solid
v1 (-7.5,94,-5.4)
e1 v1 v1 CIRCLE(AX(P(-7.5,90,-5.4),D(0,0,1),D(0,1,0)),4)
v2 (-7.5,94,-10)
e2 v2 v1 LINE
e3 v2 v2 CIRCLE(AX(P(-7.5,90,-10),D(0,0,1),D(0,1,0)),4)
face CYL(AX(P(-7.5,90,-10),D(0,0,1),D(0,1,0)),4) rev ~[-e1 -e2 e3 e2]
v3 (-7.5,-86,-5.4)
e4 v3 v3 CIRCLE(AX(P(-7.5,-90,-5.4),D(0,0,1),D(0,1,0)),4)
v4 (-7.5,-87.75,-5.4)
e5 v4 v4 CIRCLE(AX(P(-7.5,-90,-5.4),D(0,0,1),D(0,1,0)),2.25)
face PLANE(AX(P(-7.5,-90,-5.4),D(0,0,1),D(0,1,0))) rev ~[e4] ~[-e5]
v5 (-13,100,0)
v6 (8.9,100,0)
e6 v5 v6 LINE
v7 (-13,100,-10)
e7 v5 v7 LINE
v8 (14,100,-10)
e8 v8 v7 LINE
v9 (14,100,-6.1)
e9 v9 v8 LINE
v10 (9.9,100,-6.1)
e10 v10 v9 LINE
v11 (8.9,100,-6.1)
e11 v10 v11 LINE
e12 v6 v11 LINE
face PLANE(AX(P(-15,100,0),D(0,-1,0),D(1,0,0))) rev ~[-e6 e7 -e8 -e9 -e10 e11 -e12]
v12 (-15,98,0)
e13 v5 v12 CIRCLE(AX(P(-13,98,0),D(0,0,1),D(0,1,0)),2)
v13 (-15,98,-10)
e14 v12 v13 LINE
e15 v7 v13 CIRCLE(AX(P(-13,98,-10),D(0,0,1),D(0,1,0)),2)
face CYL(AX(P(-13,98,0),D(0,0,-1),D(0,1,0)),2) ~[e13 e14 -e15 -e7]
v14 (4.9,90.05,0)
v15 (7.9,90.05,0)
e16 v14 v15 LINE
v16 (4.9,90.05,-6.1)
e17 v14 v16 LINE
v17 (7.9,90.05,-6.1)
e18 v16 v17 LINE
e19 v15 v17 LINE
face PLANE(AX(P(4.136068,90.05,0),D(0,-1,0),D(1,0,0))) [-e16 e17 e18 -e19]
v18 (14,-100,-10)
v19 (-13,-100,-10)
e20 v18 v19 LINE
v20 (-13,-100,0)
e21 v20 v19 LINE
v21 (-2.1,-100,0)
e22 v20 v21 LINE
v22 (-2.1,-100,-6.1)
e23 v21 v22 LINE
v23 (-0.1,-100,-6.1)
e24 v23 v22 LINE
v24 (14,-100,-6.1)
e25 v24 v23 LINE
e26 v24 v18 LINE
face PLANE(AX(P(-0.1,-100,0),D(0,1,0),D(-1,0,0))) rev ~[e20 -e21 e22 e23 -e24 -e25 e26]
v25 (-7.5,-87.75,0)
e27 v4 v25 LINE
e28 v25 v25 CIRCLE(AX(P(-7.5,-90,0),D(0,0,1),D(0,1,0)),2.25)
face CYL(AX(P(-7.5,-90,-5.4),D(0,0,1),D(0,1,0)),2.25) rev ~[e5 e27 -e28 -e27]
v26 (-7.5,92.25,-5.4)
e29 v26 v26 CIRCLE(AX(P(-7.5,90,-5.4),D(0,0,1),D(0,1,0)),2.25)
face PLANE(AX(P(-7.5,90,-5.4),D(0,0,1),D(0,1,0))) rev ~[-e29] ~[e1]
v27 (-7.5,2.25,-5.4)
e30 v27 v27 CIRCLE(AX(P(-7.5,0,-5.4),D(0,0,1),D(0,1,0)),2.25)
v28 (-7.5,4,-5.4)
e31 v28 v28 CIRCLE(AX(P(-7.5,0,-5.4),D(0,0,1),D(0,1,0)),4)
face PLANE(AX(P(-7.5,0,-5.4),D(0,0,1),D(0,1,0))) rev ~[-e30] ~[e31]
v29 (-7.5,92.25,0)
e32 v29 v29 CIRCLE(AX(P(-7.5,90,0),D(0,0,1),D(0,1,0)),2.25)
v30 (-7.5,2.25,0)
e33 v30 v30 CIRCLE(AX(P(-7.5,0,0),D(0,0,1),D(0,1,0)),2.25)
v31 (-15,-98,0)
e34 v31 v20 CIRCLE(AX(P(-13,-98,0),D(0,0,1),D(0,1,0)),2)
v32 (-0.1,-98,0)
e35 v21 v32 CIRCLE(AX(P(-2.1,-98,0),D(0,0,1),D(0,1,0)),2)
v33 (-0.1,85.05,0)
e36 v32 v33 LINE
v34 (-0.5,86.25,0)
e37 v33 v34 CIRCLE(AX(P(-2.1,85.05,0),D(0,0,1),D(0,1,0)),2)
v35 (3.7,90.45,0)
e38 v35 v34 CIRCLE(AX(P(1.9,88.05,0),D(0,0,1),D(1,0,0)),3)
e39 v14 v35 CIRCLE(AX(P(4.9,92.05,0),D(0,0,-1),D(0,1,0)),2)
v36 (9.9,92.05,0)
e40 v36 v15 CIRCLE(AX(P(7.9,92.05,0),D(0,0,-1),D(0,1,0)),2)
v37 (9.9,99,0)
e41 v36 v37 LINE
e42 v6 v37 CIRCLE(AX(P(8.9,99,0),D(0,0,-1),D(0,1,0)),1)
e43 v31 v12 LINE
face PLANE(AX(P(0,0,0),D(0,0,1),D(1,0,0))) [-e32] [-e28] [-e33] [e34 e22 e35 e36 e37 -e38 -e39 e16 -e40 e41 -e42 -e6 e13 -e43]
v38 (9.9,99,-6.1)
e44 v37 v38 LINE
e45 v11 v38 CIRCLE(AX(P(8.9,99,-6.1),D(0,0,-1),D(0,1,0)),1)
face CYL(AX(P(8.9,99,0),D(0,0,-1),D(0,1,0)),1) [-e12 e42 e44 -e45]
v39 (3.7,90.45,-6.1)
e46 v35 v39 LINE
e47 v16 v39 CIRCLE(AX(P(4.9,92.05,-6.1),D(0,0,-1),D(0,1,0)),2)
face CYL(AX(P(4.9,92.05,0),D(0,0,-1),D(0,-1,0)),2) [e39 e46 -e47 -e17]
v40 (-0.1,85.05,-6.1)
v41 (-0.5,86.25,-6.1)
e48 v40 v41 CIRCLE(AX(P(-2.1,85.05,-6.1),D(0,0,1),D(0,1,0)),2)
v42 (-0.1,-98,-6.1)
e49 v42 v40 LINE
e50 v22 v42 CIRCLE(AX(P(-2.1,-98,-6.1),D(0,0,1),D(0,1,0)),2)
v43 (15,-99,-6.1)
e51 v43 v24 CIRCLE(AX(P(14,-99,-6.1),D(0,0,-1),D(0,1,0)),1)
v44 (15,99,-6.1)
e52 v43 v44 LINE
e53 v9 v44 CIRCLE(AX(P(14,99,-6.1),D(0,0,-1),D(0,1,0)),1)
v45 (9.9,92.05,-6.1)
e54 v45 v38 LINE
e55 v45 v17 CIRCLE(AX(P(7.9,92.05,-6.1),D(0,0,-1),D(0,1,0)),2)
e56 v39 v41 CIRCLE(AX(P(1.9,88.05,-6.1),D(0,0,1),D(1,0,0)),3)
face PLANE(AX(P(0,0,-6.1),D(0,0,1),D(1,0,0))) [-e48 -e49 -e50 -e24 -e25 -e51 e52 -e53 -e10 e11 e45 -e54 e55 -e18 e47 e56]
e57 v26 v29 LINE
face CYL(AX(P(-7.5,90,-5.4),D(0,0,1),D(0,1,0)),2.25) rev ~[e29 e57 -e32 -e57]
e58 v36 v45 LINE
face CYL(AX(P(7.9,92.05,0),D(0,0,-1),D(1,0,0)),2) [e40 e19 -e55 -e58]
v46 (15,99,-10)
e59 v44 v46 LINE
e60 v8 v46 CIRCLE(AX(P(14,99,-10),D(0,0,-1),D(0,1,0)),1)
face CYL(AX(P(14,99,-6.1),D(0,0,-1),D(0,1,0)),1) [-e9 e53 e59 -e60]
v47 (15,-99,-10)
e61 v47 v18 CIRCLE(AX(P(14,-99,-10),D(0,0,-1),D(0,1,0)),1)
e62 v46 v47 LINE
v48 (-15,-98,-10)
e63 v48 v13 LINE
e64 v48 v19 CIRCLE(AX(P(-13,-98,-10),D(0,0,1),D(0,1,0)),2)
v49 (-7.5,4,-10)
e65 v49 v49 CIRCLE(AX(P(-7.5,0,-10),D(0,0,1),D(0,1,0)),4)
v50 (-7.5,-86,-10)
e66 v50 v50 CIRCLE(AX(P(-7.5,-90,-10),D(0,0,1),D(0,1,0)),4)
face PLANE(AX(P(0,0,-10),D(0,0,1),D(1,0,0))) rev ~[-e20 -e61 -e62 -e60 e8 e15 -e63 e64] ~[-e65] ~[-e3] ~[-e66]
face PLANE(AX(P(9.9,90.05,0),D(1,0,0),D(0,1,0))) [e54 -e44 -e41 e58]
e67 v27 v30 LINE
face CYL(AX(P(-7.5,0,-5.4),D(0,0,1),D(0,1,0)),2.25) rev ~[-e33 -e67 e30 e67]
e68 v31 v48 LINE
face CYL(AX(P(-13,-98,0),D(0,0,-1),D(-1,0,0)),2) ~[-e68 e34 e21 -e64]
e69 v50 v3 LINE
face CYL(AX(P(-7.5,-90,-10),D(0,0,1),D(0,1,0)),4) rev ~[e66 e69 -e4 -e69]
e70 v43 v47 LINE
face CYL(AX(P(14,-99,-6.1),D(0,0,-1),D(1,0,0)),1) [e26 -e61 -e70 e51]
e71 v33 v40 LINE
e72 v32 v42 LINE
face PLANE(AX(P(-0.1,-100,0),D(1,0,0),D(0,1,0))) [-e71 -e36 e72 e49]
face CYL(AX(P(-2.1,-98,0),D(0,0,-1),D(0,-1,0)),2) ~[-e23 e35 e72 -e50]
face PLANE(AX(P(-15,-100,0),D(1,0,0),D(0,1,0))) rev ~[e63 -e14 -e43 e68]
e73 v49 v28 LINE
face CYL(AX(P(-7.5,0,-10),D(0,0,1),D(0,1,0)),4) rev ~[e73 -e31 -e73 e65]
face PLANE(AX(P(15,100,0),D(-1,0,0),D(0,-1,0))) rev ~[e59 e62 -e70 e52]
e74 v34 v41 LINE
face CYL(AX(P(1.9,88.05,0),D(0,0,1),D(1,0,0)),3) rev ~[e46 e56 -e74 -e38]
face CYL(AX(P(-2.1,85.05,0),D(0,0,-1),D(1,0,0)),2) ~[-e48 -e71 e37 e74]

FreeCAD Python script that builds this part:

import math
import FreeCAD as App
import Part
import Sketcher
Q = App.Units.Quantity


def edges_at(feature, points):
    """Names of the edges that pass closest to the given points."""
    edges = feature.Shape.Edges
    near = lambda p: min(range(len(edges)), key=lambda i: edges[i].distToShape(Part.Vertex(*p))[0])
    return sorted({f"Edge{near(p) + 1}" for p in points})


def add_polygon(sketch, points):
    """Adds a closed chain of lines whose ends are joined by coincident constraints."""
    first, n = sketch.GeometryCount, len(points)
    for a, b in zip(points, points[1:] + points[:1]):
        sketch.addGeometry(Part.LineSegment(App.Vector(*a, 0), App.Vector(*b, 0)), False)
    for i in range(n):
        sketch.addConstraint(Sketcher.Constraint("Coincident", first + i, 2, first + (i + 1) % n, 1))

doc = App.newDocument("Part")
body = doc.addObject("PartDesign::Body", "Body")

sketch1 = doc.addObject("Sketcher::SketchObject", "Sketch")
body.addObject(sketch1)
sketch1.AttachmentSupport = (doc.XY_Plane, [""])
sketch1.MapMode = "FlatFace"
add_polygon(sketch1, [(-15, 100), (-15, -100), (15, -100), (15, 100)])
sketch1.addConstraint([
    Sketcher.Constraint("Vertical", 0),
    Sketcher.Constraint("Horizontal", 1),
    Sketcher.Constraint("Vertical", 2),
    Sketcher.Constraint("Horizontal", 3),
    Sketcher.Constraint("Symmetric", 0, 2, 2, 2, -1, 1),
    Sketcher.Constraint("DistanceX", 1, 1, 1, 2, Q("30 mm")),
    Sketcher.Constraint("DistanceY", 0, 2, 0, 1, Q("200 mm")),
])
pad1 = doc.addObject("PartDesign::Pad", "Pad")
body.addObject(pad1)
pad1.Profile = sketch1
pad1.Length = 10
pad1.Reversed = True

sketch2 = doc.addObject("Sketcher::SketchObject", "Sketch001")
body.addObject(sketch2)
sketch2.AttachmentSupport = (doc.XY_Plane, [""])
sketch2.MapMode = "FlatFace"
sketch2.addGeometry([
    Part.LineSegment(App.Vector(15, 100, 0), App.Vector(9.9, 100, 0)),
    Part.LineSegment(App.Vector(9.9, 100, 0), App.Vector(9.9, 90.05, 0)),
    Part.LineSegment(App.Vector(9.9, 90.05, 0), App.Vector(4.136068, 90.05, 0)),
    Part.ArcOfCircle(Part.Circle(App.Vector(1.9, 88.05, 0), App.Vector(0, 0, 1), 3), math.radians(41.810315), math.radians(228.189685)),
    Part.LineSegment(App.Vector(-0.1, 85.813932, 0), App.Vector(-0.1, -100, 0)),
    Part.LineSegment(App.Vector(-0.1, -100, 0), App.Vector(15, -100, 0)),
    Part.LineSegment(App.Vector(15, -100, 0), App.Vector(15, 100, 0)),
], False)
sketch2.addConstraint([
    Sketcher.Constraint("Coincident", 0, 2, 1, 1),
    Sketcher.Constraint("Coincident", 1, 2, 2, 1),
    Sketcher.Constraint("Coincident", 2, 2, 3, 1),
    Sketcher.Constraint("Coincident", 3, 2, 4, 1),
    Sketcher.Constraint("Coincident", 4, 2, 5, 1),
    Sketcher.Constraint("Coincident", 5, 2, 6, 1),
    Sketcher.Constraint("Coincident", 6, 2, 0, 1),
    Sketcher.Constraint("Horizontal", 0),
    Sketcher.Constraint("Vertical", 1),
    Sketcher.Constraint("Horizontal", 2),
    Sketcher.Constraint("Vertical", 4),
    Sketcher.Constraint("Horizontal", 5),
    Sketcher.Constraint("Vertical", 6),
    Sketcher.Constraint("Radius", 3, Q("3 mm")),
    Sketcher.Constraint("DistanceY", 6, 1, 6, 2, Q("200 mm")),
    Sketcher.Constraint("DistanceX", 5, 1, 5, 2, Q("15.1 mm")),
    Sketcher.Constraint("DistanceY", 3, 3, 1, 2, Q("2 mm")),
    Sketcher.Constraint("DistanceX", 3, 2, 3, 3, Q("2 mm")),
    Sketcher.Constraint("DistanceX", 3, 2, 1, 2, Q("10 mm")),
    Sketcher.Constraint("DistanceY", 1, 2, 1, 1, Q("9.95 mm")),
    Sketcher.Constraint("DistanceY", -1, 1, 0, 2, Q("100 mm")),
    Sketcher.Constraint("DistanceX", -1, 1, 5, 2, Q("15 mm")),
])
pocket1 = doc.addObject("PartDesign::Pocket", "Pocket")
body.addObject(pocket1)
pocket1.Profile = sketch2
pocket1.Length = 6.1

sketch3 = doc.addObject("Sketcher::SketchObject", "Sketch002")
body.addObject(sketch3)
sketch3.AttachmentSupport = (doc.XY_Plane, [""])
sketch3.MapMode = "FlatFace"
sketch3.AttachmentOffset = App.Placement(App.Vector(0, 0, -10), App.Rotation())
sketch3.addGeometry([
    Part.Circle(App.Vector(-7.5, -90, 0), App.Vector(0, 0, 1), 2.25),
    Part.Circle(App.Vector(-7.5, 0, 0), App.Vector(0, 0, 1), 2.25),
    Part.Circle(App.Vector(-7.5, 90, 0), App.Vector(0, 0, 1), 2.25),
], False)
sketch3.addConstraint([
    Sketcher.Constraint("Equal", 0, 1),
    Sketcher.Constraint("Equal", 1, 2),
    Sketcher.Constraint("Symmetric", 0, 3, 2, 3, -1),
    Sketcher.Constraint("PointOnObject", 1, 3, -1),
    Sketcher.Constraint("Vertical", 0, 3, 1, 3),
    Sketcher.Constraint("Diameter", 0, Q("4.5 mm")),
    Sketcher.Constraint("DistanceY", 0, 3, -1, 1, Q("90 mm")),
    Sketcher.Constraint("DistanceX", 0, 3, -1, 1, Q("7.5 mm")),
])
doc.recompute()
hole = doc.addObject("PartDesign::Hole", "Hole")
body.addObject(hole)
hole.Profile = sketch3
hole.ThreadType = "None"
hole.Diameter = 4.5
hole.DepthType = "ThroughAll"
hole.HoleCutType = "Counterbore"
hole.HoleCutDiameter = 8
hole.HoleCutDepth = 4.6
hole.Reversed = True
doc.recompute()

fillet = doc.addObject("PartDesign::Fillet", "Fillet")
body.addObject(fillet)
fillet.Base = (hole, edges_at(hole, [
    (-15, -100, -5),
    (-15, 100, -5),
    (-0.1, -100, -3.05),
    (-0.1, 85.814, -3.05),
    (4.136, 90.05, -3.05),
    (9.9, 90.05, -3.05),
]))
fillet.Radius = 2
doc.recompute()

fillet2 = doc.addObject("PartDesign::Fillet", "Fillet001")
body.addObject(fillet2)
fillet2.Base = (fillet, edges_at(fillet, [(15, -100, -8.05), (15, 100, -8.05), (9.9, 100, -3.05)]))
fillet2.Radius = 1

doc.recompute()
